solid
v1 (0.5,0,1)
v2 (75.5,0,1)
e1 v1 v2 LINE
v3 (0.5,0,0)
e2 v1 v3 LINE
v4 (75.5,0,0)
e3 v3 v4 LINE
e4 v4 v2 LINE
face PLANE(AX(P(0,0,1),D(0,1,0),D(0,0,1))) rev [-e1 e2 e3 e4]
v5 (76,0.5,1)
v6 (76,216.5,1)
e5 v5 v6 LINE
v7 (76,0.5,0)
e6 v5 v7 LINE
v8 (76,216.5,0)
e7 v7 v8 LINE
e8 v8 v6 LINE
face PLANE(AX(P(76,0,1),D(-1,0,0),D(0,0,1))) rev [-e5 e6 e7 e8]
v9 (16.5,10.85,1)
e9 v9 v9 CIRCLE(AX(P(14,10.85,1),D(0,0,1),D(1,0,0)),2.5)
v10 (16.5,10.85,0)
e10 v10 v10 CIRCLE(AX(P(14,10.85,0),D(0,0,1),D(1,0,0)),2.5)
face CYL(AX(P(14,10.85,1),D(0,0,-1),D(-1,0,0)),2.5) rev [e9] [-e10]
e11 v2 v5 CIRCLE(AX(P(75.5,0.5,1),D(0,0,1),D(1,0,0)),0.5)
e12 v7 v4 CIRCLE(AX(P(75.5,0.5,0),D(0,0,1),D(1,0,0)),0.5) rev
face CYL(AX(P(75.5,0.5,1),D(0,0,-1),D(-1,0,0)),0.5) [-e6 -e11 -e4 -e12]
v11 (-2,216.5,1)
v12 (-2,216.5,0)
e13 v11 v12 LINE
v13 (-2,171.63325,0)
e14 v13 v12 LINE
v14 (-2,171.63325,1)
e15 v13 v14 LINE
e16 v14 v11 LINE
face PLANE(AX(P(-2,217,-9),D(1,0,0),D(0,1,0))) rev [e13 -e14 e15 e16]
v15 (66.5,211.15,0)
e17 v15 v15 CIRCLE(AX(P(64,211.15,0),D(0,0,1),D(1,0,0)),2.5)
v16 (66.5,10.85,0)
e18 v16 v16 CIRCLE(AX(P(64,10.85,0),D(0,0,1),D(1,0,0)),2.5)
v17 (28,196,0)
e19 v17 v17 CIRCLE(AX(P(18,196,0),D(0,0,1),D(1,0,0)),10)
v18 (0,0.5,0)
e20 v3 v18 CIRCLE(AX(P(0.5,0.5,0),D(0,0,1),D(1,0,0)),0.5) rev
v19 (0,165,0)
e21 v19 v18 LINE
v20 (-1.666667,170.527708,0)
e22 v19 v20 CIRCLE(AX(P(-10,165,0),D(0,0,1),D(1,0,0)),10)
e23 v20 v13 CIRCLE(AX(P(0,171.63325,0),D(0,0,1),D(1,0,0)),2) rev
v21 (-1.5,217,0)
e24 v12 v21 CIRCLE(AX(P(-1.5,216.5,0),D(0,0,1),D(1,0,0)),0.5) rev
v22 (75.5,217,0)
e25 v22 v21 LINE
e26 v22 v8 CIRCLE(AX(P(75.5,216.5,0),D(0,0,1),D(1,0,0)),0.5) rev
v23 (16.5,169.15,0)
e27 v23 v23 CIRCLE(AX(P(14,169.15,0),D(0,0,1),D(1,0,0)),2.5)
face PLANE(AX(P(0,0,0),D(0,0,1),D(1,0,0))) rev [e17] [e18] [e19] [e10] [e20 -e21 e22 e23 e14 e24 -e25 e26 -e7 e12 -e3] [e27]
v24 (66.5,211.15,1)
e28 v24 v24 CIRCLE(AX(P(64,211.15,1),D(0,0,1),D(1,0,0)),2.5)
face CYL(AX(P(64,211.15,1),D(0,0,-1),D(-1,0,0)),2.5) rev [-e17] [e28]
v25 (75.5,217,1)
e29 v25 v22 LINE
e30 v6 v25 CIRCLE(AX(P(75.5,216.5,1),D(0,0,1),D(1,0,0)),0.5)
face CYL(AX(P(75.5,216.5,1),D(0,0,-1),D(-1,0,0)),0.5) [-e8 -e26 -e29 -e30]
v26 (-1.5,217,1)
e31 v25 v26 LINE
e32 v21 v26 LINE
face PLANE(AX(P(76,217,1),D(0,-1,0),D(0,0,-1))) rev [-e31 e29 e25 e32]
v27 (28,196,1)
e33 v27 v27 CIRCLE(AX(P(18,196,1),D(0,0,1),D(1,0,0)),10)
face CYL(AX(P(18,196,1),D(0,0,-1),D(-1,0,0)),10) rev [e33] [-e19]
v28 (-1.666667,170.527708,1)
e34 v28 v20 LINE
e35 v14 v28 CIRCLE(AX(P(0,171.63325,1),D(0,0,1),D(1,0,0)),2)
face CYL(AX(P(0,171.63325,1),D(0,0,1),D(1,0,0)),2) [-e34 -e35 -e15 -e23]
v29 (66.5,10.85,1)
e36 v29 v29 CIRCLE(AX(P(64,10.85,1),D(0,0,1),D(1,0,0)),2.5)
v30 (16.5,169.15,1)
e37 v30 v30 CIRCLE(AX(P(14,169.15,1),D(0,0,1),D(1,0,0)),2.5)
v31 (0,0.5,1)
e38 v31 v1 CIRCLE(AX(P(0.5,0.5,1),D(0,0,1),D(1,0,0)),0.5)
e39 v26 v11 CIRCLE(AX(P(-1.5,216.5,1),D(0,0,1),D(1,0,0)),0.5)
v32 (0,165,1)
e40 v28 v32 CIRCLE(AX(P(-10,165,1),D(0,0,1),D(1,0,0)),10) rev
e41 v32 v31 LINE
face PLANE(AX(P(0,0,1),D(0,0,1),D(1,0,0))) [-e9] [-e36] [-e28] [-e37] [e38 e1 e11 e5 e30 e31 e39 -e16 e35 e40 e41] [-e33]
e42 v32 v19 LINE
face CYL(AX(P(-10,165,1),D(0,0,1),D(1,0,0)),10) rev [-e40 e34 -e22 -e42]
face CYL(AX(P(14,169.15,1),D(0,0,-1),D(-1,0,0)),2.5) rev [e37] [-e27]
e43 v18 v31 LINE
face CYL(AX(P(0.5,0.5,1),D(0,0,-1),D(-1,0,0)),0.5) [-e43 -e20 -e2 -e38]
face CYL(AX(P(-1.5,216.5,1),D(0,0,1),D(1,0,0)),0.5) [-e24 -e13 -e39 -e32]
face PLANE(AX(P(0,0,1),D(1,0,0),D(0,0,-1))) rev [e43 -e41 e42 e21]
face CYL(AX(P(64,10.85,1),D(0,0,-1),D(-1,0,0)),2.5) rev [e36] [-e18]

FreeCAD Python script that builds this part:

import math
import FreeCAD as App
import Part
import Sketcher
from FreeCAD import Vector
Q = App.Units.Quantity


def edges_at(feature, points):
    """Names of the edges that pass closest to the given points."""
    edges = feature.Shape.Edges
    near = lambda p: min(range(len(edges)), key=lambda i: edges[i].distToShape(Part.Vertex(*p))[0])
    return sorted({f"Edge{near(p) + 1}" for p in points})

doc = App.newDocument("Part")
body = doc.addObject("PartDesign::Body", "Body")

# Sketch on XY plane
sketch1 = body.newObject("Sketcher::SketchObject", "Sketch")
sketch1.AttachmentSupport = (doc.getObject("XY_Plane"), [""])
sketch1.MapMode = "FlatFace"
sketch1.addGeometry(Part.LineSegment(Vector(0, 0, 0), Vector(76, 0, 0)), False)
sketch1.addGeometry(Part.LineSegment(Vector(76, 0, 0), Vector(76, 217, 0)), False)
sketch1.addGeometry(Part.LineSegment(Vector(76, 217, 0), Vector(-12.55, 217, 0)), False)
sketch1.addGeometry(Part.LineSegment(Vector(-12.55, 217, 0), Vector(-12.55, 212, 0)), False)
sketch1.addGeometry(Part.LineSegment(Vector(-12.55, 212, 0), Vector(-19.55, 212, 0)), False)
sketch1.addGeometry(Part.LineSegment(Vector(-19.55, 212, 0), Vector(-19.55, 217, 0)), False)
sketch1.addGeometry(Part.LineSegment(Vector(-19.55, 217, 0), Vector(-32, 217, 0)), False)
sketch1.addGeometry(Part.LineSegment(Vector(-32, 217, 0), Vector(-32, 175, 0)), False)
sketch1.addGeometry(Part.LineSegment(Vector(-32, 175, 0), Vector(0, 175, 0)), False)
sketch1.addGeometry(Part.LineSegment(Vector(0, 175, 0), Vector(0, 0, 0)), False)
sketch1.addGeometry(Part.Circle(Vector(14, 10.85, 0), Vector(0, 0, 1), 2.5), False)
sketch1.addGeometry(Part.Circle(Vector(64, 10.85, 0), Vector(0, 0, 1), 2.5), False)
sketch1.addGeometry(Part.ArcOfCircle(Part.Circle(Vector(-19.55, 205.875, 0), Vector(0, 0, 1), 1.125), math.radians(90), math.radians(270)), False)
sketch1.addGeometry(Part.LineSegment(Vector(-19.55, 207, 0), Vector(-12.55, 207, 0)), False)
sketch1.addGeometry(Part.ArcOfCircle(Part.Circle(Vector(-12.55, 205.875, 0), Vector(0, 0, 1), 1.125), math.radians(-90), math.radians(90)), False)
sketch1.addGeometry(Part.LineSegment(Vector(-12.55, 204.75, 0), Vector(-19.55, 204.75, 0)), False)
sketch1.addGeometry(Part.Circle(Vector(14, 169.15, 0), Vector(0, 0, 1), 2.5), False)
sketch1.addGeometry(Part.Circle(Vector(18, 196, 0), Vector(0, 0, 1), 10), False)
sketch1.addGeometry(Part.Circle(Vector(64, 211.15, 0), Vector(0, 0, 1), 2.5), False)
sketch1.addConstraint(Sketcher.Constraint("Coincident", 0, 2, 1, 1))
sketch1.addConstraint(Sketcher.Constraint("Coincident", 1, 2, 2, 1))
sketch1.addConstraint(Sketcher.Constraint("Coincident", 2, 2, 3, 1))
sketch1.addConstraint(Sketcher.Constraint("Coincident", 3, 2, 4, 1))
sketch1.addConstraint(Sketcher.Constraint("Coincident", 4, 2, 5, 1))
sketch1.addConstraint(Sketcher.Constraint("Coincident", 5, 2, 6, 1))
sketch1.addConstraint(Sketcher.Constraint("Coincident", 6, 2, 7, 1))
sketch1.addConstraint(Sketcher.Constraint("Coincident", 7, 2, 8, 1))
sketch1.addConstraint(Sketcher.Constraint("Coincident", 8, 2, 9, 1))
sketch1.addConstraint(Sketcher.Constraint("Coincident", 9, 2, 0, 1))
sketch1.addConstraint(Sketcher.Constraint("Tangent", 12, 1, 13, 1))
sketch1.addConstraint(Sketcher.Constraint("Tangent", 13, 2, 14, 2))
sketch1.addConstraint(Sketcher.Constraint("Tangent", 14, 1, 15, 1))
sketch1.addConstraint(Sketcher.Constraint("Tangent", 15, 2, 12, 2))
sketch1.addConstraint(Sketcher.Constraint("Horizontal", 0))
sketch1.addConstraint(Sketcher.Constraint("Vertical", 1))
sketch1.addConstraint(Sketcher.Constraint("Horizontal", 2))
sketch1.addConstraint(Sketcher.Constraint("Vertical", 3))
sketch1.addConstraint(Sketcher.Constraint("Horizontal", 4))
sketch1.addConstraint(Sketcher.Constraint("Vertical", 5))
sketch1.addConstraint(Sketcher.Constraint("Horizontal", 6))
sketch1.addConstraint(Sketcher.Constraint("Vertical", 7))
sketch1.addConstraint(Sketcher.Constraint("Horizontal", 8))
sketch1.addConstraint(Sketcher.Constraint("Vertical", 9))
sketch1.addConstraint(Sketcher.Constraint("Horizontal", 13))
sketch1.addConstraint(Sketcher.Constraint("Horizontal", 15))
sketch1.addConstraint(Sketcher.Constraint("Coincident", 9, 2, -1, 1))
sketch1.addConstraint(Sketcher.Constraint("Equal", 10, 11))
sketch1.addConstraint(Sketcher.Constraint("Equal", 11, 16))
sketch1.addConstraint(Sketcher.Constraint("Equal", 16, 18))
sketch1.addConstraint(Sketcher.Constraint("Horizontal", 10, 3, 11, 3))
sketch1.addConstraint(Sketcher.Constraint("Horizontal", 2, 2, 5, 2))
sketch1.addConstraint(Sketcher.Constraint("Vertical", 10, 3, 16, 3))
sketch1.addConstraint(Sketcher.Constraint("Vertical", 11, 3, 18, 3))
sketch1.addConstraint(Sketcher.Constraint("Vertical", 14, 3, 2, 2))
sketch1.addConstraint(Sketcher.Constraint("Vertical", 12, 3, 4, 2))
sketch1.addConstraint(Sketcher.Constraint("Diameter", 10, Q("5 mm")))
sketch1.addConstraint(Sketcher.Constraint("Diameter", 17, Q("20 mm")))
sketch1.addConstraint(Sketcher.Constraint("DistanceX", 0, 1, 0, 2, Q("76 mm")))
sketch1.addConstraint(Sketcher.Constraint("DistanceX", 4, 2, 4, 1, Q("7 mm")))
sketch1.addConstraint(Sketcher.Constraint("DistanceX", 8, 1, 8, 2, Q("32 mm")))
sketch1.addConstraint(Sketcher.Constraint("DistanceY", 1, 1, 1, 2, Q("217 mm")))
sketch1.addConstraint(Sketcher.Constraint("DistanceY", 3, 2, 3, 1, Q("5 mm")))
sketch1.addConstraint(Sketcher.Constraint("DistanceY", 7, 2, 7, 1, Q("42 mm")))
sketch1.addConstraint(Sketcher.Constraint("DistanceX", -1, 1, 10, 3, Q("14 mm")))
sketch1.addConstraint(Sketcher.Constraint("DistanceX", -1, 1, 11, 3, Q("64 mm")))
sketch1.addConstraint(Sketcher.Constraint("DistanceX", -1, 1, 17, 3, Q("18 mm")))
sketch1.addConstraint(Sketcher.Constraint("DistanceY", -1, 1, 17, 3, Q("196 mm")))
sketch1.addConstraint(Sketcher.Constraint("DistanceY", -1, 1, 12, 1, Q("207 mm")))
sketch1.addConstraint(Sketcher.Constraint("Radius", 12, Q("1.125 mm")))
sketch1.addConstraint(Sketcher.Constraint("DistanceY", 16, 3, 18, 3, Q("42 mm")))
sketch1.addConstraint(Sketcher.Constraint("DistanceX", 2, 2, 2, 1, Q("88.55 mm")))
sketch1.addConstraint(Sketcher.Constraint("DistanceY", 10, 3, 16, 3, Q("158.3 mm")))
sketch1.addConstraint(Sketcher.Constraint("DistanceY", -1, 1, 10, 3, Q("10.85 mm")))
pad1 = body.newObject("PartDesign::Pad", "Pad")
pad1.Profile = sketch1
pad1.Length = 1

# Sketch on XY plane
sketch2 = body.newObject("Sketcher::SketchObject", "Sketch001")
sketch2.AttachmentSupport = (doc.getObject("XY_Plane"), [""])
sketch2.MapMode = "FlatFace"
sketch2.AttachmentOffset = App.Placement(Vector(0, 0, 1), App.Rotation())
sketch2.addGeometry(Part.Circle(Vector(-13.61066, 213.06066, 0), Vector(0, 0, 1), 1.5), False)
sketch2.addGeometry(Part.Circle(Vector(-18.48934, 213.06066, 0), Vector(0, 0, 1), 1.5), False)
sketch2.addConstraint(Sketcher.Constraint("Equal", 0, 1))
sketch2.addConstraint(Sketcher.Constraint("Horizontal", 0, 3, 1, 3))
sketch2.addConstraint(Sketcher.Constraint("Diameter", 0, Q("3 mm")))
sketch2.addConstraint(Sketcher.Constraint("DistanceX", 0, 3, -1, 1, Q("13.61066 mm")))
sketch2.addConstraint(Sketcher.Constraint("DistanceY", -1, 1, 0, 3, Q("213.06066 mm")))
sketch2.addConstraint(Sketcher.Constraint("DistanceX", 1, 3, -1, 1, Q("18.48934 mm")))
pocket1 = body.newObject("PartDesign::Pocket", "Pocket")
pocket1.Profile = sketch2
pocket1.Type = "ThroughAll"
doc.recompute()

fillet = body.newObject("PartDesign::Fillet", "Fillet")
fillet.Base = (pocket1, edges_at(pocket1, [
    (-32, 217, 0.5),
    (-19.55, 217, 0.5),
    (-12.55, 217, 0.5),
    (76, 217, 0.5),
    (76, 0, 0.5),
    (0, 0, 0.5),
]))
fillet.Radius = 0.5
doc.recompute()

fillet2 = body.newObject("PartDesign::Fillet", "Fillet001")
fillet2.Base = (fillet, edges_at(fillet, [(0, 175, 0.5), (-32, 175, 0.5)]))
fillet2.Radius = 10

# Sketch on XY plane
sketch3 = body.newObject("Sketcher::SketchObject", "Sketch002")
sketch3.AttachmentSupport = (doc.getObject("XY_Plane"), [""])
sketch3.MapMode = "FlatFace"
sketch3.AttachmentOffset = App.Placement(Vector(0, 0, 1), App.Rotation())
sketch3.addGeometry(Part.LineSegment(Vector(-2, 171, 0), Vector(-2, 217, 0)), False)
sketch3.addGeometry(Part.LineSegment(Vector(-2, 217, 0), Vector(-12.05, 217, 0)), False)
sketch3.addGeometry(Part.ArcOfCircle(Part.Circle(Vector(-12.05, 216.5, 0), Vector(0, 0, 1), 0.5), math.radians(90), math.radians(180)), False)
sketch3.addGeometry(Part.LineSegment(Vector(-12.55, 216.5, 0), Vector(-12.55, 214.12132, 0)), False)
sketch3.addGeometry(Part.ArcOfCircle(Part.Circle(Vector(-13.61066, 213.06066, 0), Vector(0, 0, 1), 1.5), math.radians(-135), math.radians(45)), False)
sketch3.addGeometry(Part.LineSegment(Vector(-14.67132, 212, 0), Vector(-17.42868, 212, 0)), False)
sketch3.addGeometry(Part.ArcOfCircle(Part.Circle(Vector(-18.48934, 213.06066, 0), Vector(0, 0, 1), 1.5), math.radians(135), math.radians(315)), False)
sketch3.addGeometry(Part.LineSegment(Vector(-19.55, 214.12132, 0), Vector(-19.55, 216.5, 0)), False)
sketch3.addGeometry(Part.ArcOfCircle(Part.Circle(Vector(-20.05, 216.5, 0), Vector(0, 0, 1), 0.5), math.radians(0), math.radians(90)), False)
sketch3.addGeometry(Part.LineSegment(Vector(-20.05, 217, 0), Vector(-31.5, 217, 0)), False)
sketch3.addGeometry(Part.ArcOfCircle(Part.Circle(Vector(-31.5, 216.5, 0), Vector(0, 0, 1), 0.5), math.radians(90), math.radians(180)), False)
sketch3.addGeometry(Part.LineSegment(Vector(-32, 216.5, 0), Vector(-32, 185, 0)), False)
sketch3.addGeometry(Part.ArcOfCircle(Part.Circle(Vector(-22, 185, 0), Vector(0, 0, 1), 10), math.radians(180), math.radians(270)), False)
sketch3.addGeometry(Part.LineSegment(Vector(-22, 175, 0), Vector(-10, 175, 0)), False)
sketch3.addGeometry(Part.ArcOfCircle(Part.Circle(Vector(-20.807743, 143.384514, 0), Vector(0, 0, 1), 33.411768), math.radians(55.742873), math.radians(71.127025)), False)
sketch3.addConstraint(Sketcher.Constraint("Coincident", 0, 2, 1, 1))
sketch3.addConstraint(Sketcher.Constraint("Tangent", 1, 2, 2, 1))
sketch3.addConstraint(Sketcher.Constraint("Tangent", 2, 2, 3, 1))
sketch3.addConstraint(Sketcher.Constraint("Coincident", 3, 2, 4, 2))
sketch3.addConstraint(Sketcher.Constraint("Coincident", 4, 1, 5, 1))
sketch3.addConstraint(Sketcher.Constraint("Coincident", 5, 2, 6, 2))
sketch3.addConstraint(Sketcher.Constraint("Coincident", 6, 1, 7, 1))
sketch3.addConstraint(Sketcher.Constraint("Tangent", 7, 2, 8, 1))
sketch3.addConstraint(Sketcher.Constraint("Tangent", 8, 2, 9, 1))
sketch3.addConstraint(Sketcher.Constraint("Tangent", 9, 2, 10, 1))
sketch3.addConstraint(Sketcher.Constraint("Tangent", 10, 2, 11, 1))
sketch3.addConstraint(Sketcher.Constraint("Tangent", 11, 2, 12, 1))
sketch3.addConstraint(Sketcher.Constraint("Tangent", 12, 2, 13, 1))
sketch3.addConstraint(Sketcher.Constraint("Coincident", 13, 2, 14, 2))
sketch3.addConstraint(Sketcher.Constraint("Coincident", 14, 1, 0, 1))
sketch3.addConstraint(Sketcher.Constraint("Vertical", 0))
sketch3.addConstraint(Sketcher.Constraint("Horizontal", 1))
sketch3.addConstraint(Sketcher.Constraint("Vertical", 3))
sketch3.addConstraint(Sketcher.Constraint("Horizontal", 5))
sketch3.addConstraint(Sketcher.Constraint("Vertical", 7))
sketch3.addConstraint(Sketcher.Constraint("Horizontal", 9))
sketch3.addConstraint(Sketcher.Constraint("Vertical", 11))
sketch3.addConstraint(Sketcher.Constraint("Horizontal", 13))
sketch3.addConstraint(Sketcher.Constraint("Equal", 4, 6))
sketch3.addConstraint(Sketcher.Constraint("Equal", 2, 8))
sketch3.addConstraint(Sketcher.Constraint("Equal", 8, 10))
sketch3.addConstraint(Sketcher.Constraint("Horizontal", 4, 3, 6, 3))
sketch3.addConstraint(Sketcher.Constraint("Horizontal", 2, 3, 8, 3))
sketch3.addConstraint(Sketcher.Constraint("Horizontal", 3, 2, 6, 1))
sketch3.addConstraint(Sketcher.Constraint("Radius", 12, Q("10 mm")))
sketch3.addConstraint(Sketcher.Constraint("Radius", 2, Q("0.5 mm")))
sketch3.addConstraint(Sketcher.Constraint("Radius", 4, Q("1.5 mm")))
sketch3.addConstraint(Sketcher.Constraint("DistanceX", 13, 1, 13, 2, Q("12 mm")))
sketch3.addConstraint(Sketcher.Constraint("DistanceY", 0, 1, 0, 2, Q("46 mm")))
sketch3.addConstraint(Sketcher.Constraint("DistanceY", 11, 2, 11, 1, Q("31.5 mm")))
sketch3.addConstraint(Sketcher.Constraint("DistanceX", 12, 3, -1, 1, Q("22 mm")))
sketch3.addConstraint(Sketcher.Constraint("DistanceY", -1, 1, 12, 3, Q("185 mm")))
sketch3.addConstraint(Sketcher.Constraint("DistanceX", 0, 2, -1, 1, Q("2 mm")))
sketch3.addConstraint(Sketcher.Constraint("DistanceY", -1, 1, 4, 1, Q("212 mm")))
sketch3.addConstraint(Sketcher.Constraint("DistanceX", 8, 3, 2, 3, Q("8 mm")))
sketch3.addConstraint(Sketcher.Constraint("DistanceX", 1, 2, 1, 1, Q("10.05 mm")))
sketch3.addConstraint(Sketcher.Constraint("Radius", 14, Q("33.411768 mm")))
sketch3.addConstraint(Sketcher.Constraint("DistanceX", 5, 2, 5, 1, Q("2.757359 mm")))
sketch3.addConstraint(Sketcher.Constraint("DistanceX", 4, 3, -1, 1, Q("13.61066 mm")))
pocket2 = body.newObject("PartDesign::Pocket", "Pocket001")
pocket2.Profile = sketch3
pocket2.Length = 10
doc.recompute()

fillet3 = body.newObject("PartDesign::Fillet", "Fillet002")
fillet3.Base = (pocket2, edges_at(pocket2, [(-2, 171, 0.5)]))
fillet3.Radius = 2
doc.recompute()

fillet4 = body.newObject("PartDesign::Fillet", "Fillet003")
fillet4.Base = (fillet3, edges_at(fillet3, [(-2, 217, 0.5)]))
fillet4.Radius = 0.5

doc.recompute()
